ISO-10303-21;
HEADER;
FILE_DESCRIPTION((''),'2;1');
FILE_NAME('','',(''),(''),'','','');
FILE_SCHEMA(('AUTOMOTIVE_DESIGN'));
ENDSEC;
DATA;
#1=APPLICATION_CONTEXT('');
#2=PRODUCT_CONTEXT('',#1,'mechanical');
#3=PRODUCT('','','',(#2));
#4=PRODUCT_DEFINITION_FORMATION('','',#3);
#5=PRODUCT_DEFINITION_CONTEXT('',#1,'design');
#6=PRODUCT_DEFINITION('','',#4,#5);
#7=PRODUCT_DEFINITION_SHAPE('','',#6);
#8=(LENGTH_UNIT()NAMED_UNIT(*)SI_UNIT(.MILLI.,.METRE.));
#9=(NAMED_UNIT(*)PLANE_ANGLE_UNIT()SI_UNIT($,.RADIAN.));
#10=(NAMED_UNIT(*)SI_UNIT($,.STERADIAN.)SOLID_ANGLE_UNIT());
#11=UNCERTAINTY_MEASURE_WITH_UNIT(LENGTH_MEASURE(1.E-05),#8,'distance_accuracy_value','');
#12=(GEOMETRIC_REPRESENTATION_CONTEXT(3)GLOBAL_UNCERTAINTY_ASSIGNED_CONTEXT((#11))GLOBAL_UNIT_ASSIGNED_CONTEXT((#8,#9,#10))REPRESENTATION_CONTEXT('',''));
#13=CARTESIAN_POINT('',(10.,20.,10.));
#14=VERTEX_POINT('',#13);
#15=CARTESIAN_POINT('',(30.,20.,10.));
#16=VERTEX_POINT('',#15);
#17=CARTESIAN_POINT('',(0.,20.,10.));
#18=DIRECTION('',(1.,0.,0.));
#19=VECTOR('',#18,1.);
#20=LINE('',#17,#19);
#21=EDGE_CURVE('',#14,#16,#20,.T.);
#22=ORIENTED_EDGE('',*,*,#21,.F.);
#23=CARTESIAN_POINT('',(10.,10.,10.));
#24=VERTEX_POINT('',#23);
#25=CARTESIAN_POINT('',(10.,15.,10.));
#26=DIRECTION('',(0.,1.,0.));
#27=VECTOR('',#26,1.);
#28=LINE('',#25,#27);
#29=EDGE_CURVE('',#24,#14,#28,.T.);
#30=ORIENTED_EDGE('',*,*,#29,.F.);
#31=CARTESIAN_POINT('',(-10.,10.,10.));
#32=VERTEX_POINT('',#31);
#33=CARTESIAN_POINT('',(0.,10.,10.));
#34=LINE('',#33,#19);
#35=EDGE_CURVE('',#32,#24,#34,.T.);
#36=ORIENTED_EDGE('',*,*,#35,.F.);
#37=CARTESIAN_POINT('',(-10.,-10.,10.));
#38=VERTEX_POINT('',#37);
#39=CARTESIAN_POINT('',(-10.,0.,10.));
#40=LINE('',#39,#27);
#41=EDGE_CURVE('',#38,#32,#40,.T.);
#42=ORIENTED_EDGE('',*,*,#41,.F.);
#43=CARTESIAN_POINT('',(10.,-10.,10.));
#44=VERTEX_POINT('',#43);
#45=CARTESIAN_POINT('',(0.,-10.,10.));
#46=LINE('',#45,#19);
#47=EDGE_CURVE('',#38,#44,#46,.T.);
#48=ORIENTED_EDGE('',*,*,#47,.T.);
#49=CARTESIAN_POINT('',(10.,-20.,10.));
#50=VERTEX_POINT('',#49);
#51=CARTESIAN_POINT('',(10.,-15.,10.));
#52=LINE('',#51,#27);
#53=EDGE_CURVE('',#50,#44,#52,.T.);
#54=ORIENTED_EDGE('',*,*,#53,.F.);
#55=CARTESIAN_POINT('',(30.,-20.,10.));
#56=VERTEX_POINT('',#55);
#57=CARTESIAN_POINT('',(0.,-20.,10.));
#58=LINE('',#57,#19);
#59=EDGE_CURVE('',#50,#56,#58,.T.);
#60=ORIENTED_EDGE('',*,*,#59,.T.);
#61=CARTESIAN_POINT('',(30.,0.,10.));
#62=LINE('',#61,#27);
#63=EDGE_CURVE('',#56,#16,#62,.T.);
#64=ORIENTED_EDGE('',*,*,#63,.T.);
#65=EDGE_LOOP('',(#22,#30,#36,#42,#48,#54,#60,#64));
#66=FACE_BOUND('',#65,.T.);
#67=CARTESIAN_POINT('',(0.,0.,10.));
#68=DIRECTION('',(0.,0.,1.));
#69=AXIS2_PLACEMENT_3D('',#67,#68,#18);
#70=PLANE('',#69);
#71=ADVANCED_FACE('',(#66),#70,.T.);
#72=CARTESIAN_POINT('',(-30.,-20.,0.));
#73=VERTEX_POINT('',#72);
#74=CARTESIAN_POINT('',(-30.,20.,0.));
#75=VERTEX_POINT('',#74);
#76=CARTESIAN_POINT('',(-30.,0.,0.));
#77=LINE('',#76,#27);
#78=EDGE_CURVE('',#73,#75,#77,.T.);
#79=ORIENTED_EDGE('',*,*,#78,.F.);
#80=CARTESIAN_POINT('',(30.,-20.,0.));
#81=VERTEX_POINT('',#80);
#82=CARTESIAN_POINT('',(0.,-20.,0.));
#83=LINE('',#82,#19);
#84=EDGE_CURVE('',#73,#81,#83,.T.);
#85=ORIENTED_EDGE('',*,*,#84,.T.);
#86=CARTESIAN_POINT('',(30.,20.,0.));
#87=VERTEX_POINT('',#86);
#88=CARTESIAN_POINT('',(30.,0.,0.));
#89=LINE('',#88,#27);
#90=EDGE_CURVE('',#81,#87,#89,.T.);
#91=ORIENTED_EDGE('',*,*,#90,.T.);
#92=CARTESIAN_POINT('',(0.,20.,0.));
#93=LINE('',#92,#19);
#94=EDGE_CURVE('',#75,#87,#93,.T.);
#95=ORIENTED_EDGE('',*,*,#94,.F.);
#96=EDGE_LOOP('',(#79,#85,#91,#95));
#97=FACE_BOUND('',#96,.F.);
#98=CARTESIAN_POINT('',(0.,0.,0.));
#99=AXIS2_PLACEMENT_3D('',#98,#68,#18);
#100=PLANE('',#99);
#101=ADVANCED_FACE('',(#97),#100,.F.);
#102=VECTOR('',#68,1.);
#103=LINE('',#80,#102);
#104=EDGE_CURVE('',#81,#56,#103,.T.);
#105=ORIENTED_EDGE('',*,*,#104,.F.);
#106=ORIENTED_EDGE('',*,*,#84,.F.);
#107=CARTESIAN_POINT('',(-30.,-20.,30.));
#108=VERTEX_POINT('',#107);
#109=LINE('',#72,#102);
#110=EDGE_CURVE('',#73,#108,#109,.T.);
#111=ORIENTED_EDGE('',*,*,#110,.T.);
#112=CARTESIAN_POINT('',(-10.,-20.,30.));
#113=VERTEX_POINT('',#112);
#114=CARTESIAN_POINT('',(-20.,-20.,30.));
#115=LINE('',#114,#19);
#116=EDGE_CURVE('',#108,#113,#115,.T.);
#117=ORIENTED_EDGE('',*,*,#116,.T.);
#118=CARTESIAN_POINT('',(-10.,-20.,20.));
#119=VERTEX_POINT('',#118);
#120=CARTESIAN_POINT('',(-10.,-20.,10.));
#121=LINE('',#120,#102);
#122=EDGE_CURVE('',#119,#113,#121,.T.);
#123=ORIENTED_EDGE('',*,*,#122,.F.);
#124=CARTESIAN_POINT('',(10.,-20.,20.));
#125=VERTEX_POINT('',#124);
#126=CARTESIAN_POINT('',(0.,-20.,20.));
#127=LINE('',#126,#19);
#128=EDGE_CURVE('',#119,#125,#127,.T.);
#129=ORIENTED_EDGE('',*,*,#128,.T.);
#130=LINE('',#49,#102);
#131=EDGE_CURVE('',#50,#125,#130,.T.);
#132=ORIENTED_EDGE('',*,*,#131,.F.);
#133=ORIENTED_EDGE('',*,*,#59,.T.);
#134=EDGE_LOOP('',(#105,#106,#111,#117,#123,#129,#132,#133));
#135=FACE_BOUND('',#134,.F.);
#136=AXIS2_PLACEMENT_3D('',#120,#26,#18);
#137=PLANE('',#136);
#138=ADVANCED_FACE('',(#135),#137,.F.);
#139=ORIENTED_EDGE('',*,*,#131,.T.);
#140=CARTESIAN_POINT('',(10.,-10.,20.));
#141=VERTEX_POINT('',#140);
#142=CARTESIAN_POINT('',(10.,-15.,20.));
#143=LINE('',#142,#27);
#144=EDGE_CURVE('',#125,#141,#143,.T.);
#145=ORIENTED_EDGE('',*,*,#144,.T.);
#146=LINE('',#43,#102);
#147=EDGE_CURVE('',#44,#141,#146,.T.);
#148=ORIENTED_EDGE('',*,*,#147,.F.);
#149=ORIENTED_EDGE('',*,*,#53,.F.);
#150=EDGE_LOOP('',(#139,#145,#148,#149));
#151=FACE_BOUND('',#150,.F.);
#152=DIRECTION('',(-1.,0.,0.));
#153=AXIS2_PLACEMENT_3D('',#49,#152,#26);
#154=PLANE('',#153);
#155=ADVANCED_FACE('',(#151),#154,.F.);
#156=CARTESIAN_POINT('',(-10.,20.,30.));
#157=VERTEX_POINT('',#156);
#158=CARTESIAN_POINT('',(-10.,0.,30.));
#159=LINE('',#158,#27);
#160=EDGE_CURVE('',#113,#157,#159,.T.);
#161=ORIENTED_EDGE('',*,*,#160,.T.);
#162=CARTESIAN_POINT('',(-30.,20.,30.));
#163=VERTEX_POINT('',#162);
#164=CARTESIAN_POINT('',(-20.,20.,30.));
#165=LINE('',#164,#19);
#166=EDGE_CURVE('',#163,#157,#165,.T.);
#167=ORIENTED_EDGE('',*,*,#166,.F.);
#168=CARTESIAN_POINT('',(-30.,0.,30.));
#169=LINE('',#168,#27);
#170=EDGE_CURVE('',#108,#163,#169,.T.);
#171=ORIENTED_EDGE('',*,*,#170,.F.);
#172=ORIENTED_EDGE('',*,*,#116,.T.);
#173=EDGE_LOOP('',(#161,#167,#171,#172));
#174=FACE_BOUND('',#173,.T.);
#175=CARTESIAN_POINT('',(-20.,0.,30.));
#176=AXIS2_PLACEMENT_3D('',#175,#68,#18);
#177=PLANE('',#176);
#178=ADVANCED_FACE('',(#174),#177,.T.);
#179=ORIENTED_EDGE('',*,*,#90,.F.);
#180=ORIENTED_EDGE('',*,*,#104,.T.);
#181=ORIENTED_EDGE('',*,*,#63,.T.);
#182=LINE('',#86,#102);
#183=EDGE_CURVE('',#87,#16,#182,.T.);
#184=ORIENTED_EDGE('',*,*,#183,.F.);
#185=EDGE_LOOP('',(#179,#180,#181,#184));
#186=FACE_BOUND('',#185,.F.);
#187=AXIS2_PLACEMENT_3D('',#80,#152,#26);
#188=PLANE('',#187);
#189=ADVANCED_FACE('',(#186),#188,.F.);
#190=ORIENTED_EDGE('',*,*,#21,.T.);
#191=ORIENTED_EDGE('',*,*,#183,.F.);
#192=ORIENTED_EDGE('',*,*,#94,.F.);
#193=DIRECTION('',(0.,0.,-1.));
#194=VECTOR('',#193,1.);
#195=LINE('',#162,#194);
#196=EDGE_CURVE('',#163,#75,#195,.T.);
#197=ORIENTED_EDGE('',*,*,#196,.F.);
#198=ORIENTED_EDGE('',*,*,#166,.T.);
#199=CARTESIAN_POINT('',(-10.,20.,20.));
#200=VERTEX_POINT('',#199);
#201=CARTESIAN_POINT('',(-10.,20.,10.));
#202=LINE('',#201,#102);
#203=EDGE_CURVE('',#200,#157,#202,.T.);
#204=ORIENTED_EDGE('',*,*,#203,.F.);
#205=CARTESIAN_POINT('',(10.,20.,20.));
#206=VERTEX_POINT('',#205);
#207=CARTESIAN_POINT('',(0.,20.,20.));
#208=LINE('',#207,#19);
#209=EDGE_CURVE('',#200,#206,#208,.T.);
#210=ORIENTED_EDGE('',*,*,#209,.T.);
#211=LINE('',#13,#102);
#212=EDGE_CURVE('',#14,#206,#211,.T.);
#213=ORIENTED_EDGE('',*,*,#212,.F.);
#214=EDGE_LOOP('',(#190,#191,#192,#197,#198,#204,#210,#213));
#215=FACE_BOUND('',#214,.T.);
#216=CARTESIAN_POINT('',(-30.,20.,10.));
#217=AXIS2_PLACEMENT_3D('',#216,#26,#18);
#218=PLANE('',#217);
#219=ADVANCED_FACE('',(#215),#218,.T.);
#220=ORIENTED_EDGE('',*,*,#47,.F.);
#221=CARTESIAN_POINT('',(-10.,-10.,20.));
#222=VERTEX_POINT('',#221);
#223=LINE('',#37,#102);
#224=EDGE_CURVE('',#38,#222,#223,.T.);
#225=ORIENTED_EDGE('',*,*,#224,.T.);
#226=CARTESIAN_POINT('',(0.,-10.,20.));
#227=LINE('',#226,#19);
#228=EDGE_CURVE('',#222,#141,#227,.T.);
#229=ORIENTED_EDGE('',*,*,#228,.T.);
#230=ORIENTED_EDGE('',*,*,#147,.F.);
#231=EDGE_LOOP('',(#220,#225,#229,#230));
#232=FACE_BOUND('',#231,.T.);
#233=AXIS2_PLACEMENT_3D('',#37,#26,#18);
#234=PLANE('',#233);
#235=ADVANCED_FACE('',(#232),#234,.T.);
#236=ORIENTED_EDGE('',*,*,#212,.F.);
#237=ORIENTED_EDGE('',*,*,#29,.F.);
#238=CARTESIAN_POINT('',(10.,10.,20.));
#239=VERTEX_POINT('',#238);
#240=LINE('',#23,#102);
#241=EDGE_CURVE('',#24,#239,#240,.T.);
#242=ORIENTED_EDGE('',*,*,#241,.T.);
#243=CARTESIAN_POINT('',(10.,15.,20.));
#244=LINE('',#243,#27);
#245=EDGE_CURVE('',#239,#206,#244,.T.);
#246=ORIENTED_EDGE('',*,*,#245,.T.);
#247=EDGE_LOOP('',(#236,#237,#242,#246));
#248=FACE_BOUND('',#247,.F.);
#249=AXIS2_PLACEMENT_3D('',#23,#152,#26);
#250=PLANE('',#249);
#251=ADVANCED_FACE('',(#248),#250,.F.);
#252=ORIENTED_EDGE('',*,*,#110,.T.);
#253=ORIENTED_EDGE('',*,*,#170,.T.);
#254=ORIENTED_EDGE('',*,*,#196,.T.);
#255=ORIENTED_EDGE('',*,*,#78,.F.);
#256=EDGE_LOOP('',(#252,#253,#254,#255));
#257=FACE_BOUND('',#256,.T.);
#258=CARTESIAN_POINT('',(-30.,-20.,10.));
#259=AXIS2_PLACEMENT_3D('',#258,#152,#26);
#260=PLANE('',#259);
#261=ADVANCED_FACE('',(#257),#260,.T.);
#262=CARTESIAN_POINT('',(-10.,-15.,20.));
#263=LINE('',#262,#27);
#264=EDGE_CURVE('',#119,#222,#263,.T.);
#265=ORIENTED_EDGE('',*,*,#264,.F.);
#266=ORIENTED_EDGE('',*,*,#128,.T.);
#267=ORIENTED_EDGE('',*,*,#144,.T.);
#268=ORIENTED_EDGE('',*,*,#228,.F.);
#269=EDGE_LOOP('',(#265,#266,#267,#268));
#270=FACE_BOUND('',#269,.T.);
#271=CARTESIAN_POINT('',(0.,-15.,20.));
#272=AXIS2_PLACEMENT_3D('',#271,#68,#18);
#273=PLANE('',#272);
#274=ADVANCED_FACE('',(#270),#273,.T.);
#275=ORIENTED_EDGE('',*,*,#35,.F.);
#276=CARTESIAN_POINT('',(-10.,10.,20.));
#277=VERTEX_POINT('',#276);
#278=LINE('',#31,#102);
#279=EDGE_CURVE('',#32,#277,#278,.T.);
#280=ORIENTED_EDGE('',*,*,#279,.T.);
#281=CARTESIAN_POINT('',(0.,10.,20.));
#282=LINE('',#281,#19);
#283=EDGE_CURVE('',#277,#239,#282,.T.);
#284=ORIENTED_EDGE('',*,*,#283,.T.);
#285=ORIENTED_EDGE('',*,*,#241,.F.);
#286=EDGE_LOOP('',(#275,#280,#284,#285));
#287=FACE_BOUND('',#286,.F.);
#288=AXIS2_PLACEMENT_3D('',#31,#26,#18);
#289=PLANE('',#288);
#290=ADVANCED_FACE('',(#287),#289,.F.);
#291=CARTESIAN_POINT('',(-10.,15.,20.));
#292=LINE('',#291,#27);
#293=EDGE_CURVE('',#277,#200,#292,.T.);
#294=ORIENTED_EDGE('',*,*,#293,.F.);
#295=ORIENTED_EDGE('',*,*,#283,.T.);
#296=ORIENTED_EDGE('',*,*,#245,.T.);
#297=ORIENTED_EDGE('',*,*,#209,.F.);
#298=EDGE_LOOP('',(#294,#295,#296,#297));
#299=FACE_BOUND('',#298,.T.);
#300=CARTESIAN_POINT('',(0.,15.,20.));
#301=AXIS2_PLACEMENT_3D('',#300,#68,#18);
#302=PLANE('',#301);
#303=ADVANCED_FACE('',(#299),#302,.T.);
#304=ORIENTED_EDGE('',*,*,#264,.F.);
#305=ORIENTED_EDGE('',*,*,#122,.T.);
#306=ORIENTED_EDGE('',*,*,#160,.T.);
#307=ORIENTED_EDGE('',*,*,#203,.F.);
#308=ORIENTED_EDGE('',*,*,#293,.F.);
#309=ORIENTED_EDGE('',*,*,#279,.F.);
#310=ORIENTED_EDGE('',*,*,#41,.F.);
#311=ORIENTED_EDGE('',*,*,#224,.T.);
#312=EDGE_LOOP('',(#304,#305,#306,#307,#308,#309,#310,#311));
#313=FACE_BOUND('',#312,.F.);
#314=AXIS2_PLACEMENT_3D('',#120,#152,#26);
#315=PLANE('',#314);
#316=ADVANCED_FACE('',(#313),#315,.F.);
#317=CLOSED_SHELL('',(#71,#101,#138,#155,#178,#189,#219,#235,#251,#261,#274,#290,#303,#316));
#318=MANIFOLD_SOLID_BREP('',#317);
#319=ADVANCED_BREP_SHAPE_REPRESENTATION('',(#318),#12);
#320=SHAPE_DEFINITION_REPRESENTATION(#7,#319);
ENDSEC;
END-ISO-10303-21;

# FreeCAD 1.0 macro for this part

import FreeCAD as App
import Part
import Sketcher
Q = App.Units.Quantity


def add_polygon(sketch, points):
    """Adds a closed chain of lines whose ends are joined by coincident constraints."""
    first, n = sketch.GeometryCount, len(points)
    for a, b in zip(points, points[1:] + points[:1]):
        sketch.addGeometry(Part.LineSegment(App.Vector(*a, 0), App.Vector(*b, 0)), False)
    for i in range(n):
        sketch.addConstraint(Sketcher.Constraint("Coincident", first + i, 2, first + (i + 1) % n, 1))

doc = App.newDocument("Part")
body = doc.addObject("PartDesign::Body", "Body")

sketch1 = doc.addObject("Sketcher::SketchObject", "Sketch")
body.addObject(sketch1)
sketch1.AttachmentSupport = (doc.XY_Plane, [""])
sketch1.MapMode = "FlatFace"
add_polygon(sketch1, [(-30, 20), (-30, -20), (30, -20), (30, 20)])
sketch1.addConstraint(Sketcher.Constraint("Vertical", 0))
sketch1.addConstraint(Sketcher.Constraint("Horizontal", 1))
sketch1.addConstraint(Sketcher.Constraint("Vertical", 2))
sketch1.addConstraint(Sketcher.Constraint("Horizontal", 3))
sketch1.addConstraint(Sketcher.Constraint("Symmetric", 0, 2, 2, 2, -1, 1))
sketch1.addConstraint(Sketcher.Constraint("DistanceX", 1, 1, 1, 2, Q("60 mm")))
sketch1.addConstraint(Sketcher.Constraint("DistanceY", 0, 2, 0, 1, Q("40 mm")))
pad1 = doc.addObject("PartDesign::Pad", "Pad")
body.addObject(pad1)
pad1.Profile = sketch1
pad1.Length = 10

sketch2 = doc.addObject("Sketcher::SketchObject", "Sketch001")
body.addObject(sketch2)
sketch2.AttachmentSupport = (doc.XY_Plane, [""])
sketch2.MapMode = "FlatFace"
sketch2.AttachmentOffset = App.Placement(App.Vector(0, 0, 10), App.Rotation())
add_polygon(sketch2, [(-30, 20), (-30, -20), (-10, -20), (-10, 20)])
sketch2.addConstraint(Sketcher.Constraint("Vertical", 0))
sketch2.addConstraint(Sketcher.Constraint("Horizontal", 1))
sketch2.addConstraint(Sketcher.Constraint("Vertical", 2))
sketch2.addConstraint(Sketcher.Constraint("Horizontal", 3))
sketch2.addConstraint(Sketcher.Constraint("DistanceX", 1, 1, 1, 2, Q("20 mm")))
sketch2.addConstraint(Sketcher.Constraint("DistanceY", 0, 2, 0, 1, Q("40 mm")))
sketch2.addConstraint(Sketcher.Constraint("DistanceX", 0, 2, -1, 1, Q("30 mm")))
sketch2.addConstraint(Sketcher.Constraint("DistanceY", 0, 2, -1, 1, Q("20 mm")))
pad2 = doc.addObject("PartDesign::Pad", "Pad001")
body.addObject(pad2)
pad2.Profile = sketch2
pad2.Length = 20

sketch3 = doc.addObject("Sketcher::SketchObject", "Sketch002")
body.addObject(sketch3)
sketch3.AttachmentSupport = (doc.XY_Plane, [""])
sketch3.MapMode = "FlatFace"
sketch3.AttachmentOffset = App.Placement(App.Vector(0, 0, 10), App.Rotation())
add_polygon(sketch3, [(-10, -10), (-10, -20), (10, -20), (10, -10)])
sketch3.addConstraint(Sketcher.Constraint("Vertical", 0))
sketch3.addConstraint(Sketcher.Constraint("Horizontal", 1))
sketch3.addConstraint(Sketcher.Constraint("Vertical", 2))
sketch3.addConstraint(Sketcher.Constraint("Horizontal", 3))
sketch3.addConstraint(Sketcher.Constraint("DistanceX", 1, 1, 1, 2, Q("20 mm")))
sketch3.addConstraint(Sketcher.Constraint("DistanceY", 0, 2, 0, 1, Q("10 mm")))
sketch3.addConstraint(Sketcher.Constraint("DistanceX", 0, 2, -1, 1, Q("10 mm")))
sketch3.addConstraint(Sketcher.Constraint("DistanceY", 0, 2, -1, 1, Q("20 mm")))
pad3 = doc.addObject("PartDesign::Pad", "Pad002")
body.addObject(pad3)
pad3.Profile = sketch3
pad3.Length = 10

sketch4 = doc.addObject("Sketcher::SketchObject", "Sketch003")
body.addObject(sketch4)
sketch4.AttachmentSupport = (doc.XY_Plane, [""])
sketch4.MapMode = "FlatFace"
sketch4.AttachmentOffset = App.Placement(App.Vector(0, 0, 10), App.Rotation())
add_polygon(sketch4, [(-10, 20), (-10, 10), (10, 10), (10, 20)])
sketch4.addConstraint(Sketcher.Constraint("Vertical", 0))
sketch4.addConstraint(Sketcher.Constraint("Horizontal", 1))
sketch4.addConstraint(Sketcher.Constraint("Vertical", 2))
sketch4.addConstraint(Sketcher.Constraint("Horizontal", 3))
sketch4.addConstraint(Sketcher.Constraint("DistanceX", 1, 1, 1, 2, Q("20 mm")))
sketch4.addConstraint(Sketcher.Constraint("DistanceY", 0, 2, 0, 1, Q("10 mm")))
sketch4.addConstraint(Sketcher.Constraint("DistanceX", 0, 2, -1, 1, Q("10 mm")))
sketch4.addConstraint(Sketcher.Constraint("DistanceY", -1, 1, 0, 2, Q("10 mm")))
pad4 = doc.addObject("PartDesign::Pad", "Pad003")
body.addObject(pad4)
pad4.Profile = sketch4
pad4.Length = 10

doc.recompute()
